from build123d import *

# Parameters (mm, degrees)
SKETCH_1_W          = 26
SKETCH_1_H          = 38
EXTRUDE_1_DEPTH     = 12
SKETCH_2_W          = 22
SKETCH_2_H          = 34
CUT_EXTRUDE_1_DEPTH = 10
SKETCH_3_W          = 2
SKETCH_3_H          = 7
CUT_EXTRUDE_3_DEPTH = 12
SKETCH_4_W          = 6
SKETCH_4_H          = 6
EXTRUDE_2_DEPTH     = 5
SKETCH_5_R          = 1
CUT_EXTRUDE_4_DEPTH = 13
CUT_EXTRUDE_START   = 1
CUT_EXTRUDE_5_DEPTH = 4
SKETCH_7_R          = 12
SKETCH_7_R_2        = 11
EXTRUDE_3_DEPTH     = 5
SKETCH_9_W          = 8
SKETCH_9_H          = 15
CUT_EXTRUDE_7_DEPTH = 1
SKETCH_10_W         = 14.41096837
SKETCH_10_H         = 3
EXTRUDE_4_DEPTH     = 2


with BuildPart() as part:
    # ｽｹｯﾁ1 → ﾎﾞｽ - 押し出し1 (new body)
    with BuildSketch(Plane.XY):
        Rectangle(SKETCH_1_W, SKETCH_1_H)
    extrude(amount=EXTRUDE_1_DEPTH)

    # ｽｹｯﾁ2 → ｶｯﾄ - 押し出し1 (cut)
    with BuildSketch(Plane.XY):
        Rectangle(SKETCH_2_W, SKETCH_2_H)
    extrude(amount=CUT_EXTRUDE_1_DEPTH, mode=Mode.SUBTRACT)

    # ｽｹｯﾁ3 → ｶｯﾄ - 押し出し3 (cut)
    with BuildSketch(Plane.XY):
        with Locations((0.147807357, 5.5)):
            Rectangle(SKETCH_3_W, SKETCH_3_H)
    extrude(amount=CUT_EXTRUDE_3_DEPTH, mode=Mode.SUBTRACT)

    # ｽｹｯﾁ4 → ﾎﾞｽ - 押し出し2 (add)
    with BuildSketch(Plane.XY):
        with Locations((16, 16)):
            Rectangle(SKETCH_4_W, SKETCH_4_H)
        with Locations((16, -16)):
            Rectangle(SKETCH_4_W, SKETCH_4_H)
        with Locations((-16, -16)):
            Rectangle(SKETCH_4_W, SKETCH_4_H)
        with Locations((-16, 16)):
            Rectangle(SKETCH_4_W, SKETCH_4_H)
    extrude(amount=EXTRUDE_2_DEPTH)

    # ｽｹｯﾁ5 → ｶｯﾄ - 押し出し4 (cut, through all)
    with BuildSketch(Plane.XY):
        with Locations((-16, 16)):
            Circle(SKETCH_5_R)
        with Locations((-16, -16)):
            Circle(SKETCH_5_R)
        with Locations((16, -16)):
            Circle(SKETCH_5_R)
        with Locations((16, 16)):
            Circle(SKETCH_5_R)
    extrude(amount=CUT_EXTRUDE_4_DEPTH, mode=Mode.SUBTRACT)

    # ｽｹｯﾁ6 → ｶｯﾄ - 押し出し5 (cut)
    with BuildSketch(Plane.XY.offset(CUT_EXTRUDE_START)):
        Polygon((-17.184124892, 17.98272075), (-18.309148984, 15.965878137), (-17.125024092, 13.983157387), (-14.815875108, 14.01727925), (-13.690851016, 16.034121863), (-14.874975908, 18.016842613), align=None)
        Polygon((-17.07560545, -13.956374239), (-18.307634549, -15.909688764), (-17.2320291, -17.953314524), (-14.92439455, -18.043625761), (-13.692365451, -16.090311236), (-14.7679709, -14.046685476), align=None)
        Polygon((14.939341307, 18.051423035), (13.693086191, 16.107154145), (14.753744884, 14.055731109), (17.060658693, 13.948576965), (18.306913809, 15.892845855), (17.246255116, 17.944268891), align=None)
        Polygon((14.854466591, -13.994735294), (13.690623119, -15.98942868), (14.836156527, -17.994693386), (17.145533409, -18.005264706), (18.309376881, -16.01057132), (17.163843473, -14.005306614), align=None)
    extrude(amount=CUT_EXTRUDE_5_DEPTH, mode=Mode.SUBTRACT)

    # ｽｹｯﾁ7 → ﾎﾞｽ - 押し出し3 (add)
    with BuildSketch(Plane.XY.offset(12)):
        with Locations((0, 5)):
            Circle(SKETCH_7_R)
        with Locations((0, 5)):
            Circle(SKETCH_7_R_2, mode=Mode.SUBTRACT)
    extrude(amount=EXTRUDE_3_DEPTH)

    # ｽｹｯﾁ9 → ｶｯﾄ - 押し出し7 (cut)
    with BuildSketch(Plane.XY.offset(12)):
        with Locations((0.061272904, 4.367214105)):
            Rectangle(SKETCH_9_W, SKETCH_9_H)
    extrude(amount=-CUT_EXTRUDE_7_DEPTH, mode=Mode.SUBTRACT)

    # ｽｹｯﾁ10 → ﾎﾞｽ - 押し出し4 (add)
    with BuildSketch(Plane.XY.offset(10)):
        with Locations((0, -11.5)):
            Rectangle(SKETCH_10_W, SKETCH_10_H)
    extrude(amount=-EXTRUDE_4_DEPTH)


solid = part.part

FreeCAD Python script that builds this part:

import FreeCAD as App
import Part
import Sketcher

V = App.Vector


def add_polygon(sketch, points):
    """Adds a closed chain of lines whose ends are joined by coincident constraints."""
    first, n = sketch.GeometryCount, len(points)
    for a, b in zip(points, points[1:] + points[:1]):
        sketch.addGeometry(Part.LineSegment(App.Vector(*a, 0), App.Vector(*b, 0)), False)
    for i in range(n):
        sketch.addConstraint(Sketcher.Constraint("Coincident", first + i, 2, first + (i + 1) % n, 1))

doc = App.newDocument("Part")
body = doc.addObject("PartDesign::Body", "Body")

# Sketch on XY plane
sketch1 = body.newObject("Sketcher::SketchObject", "Sketch")
sketch1.AttachmentSupport = (doc.getObject("XY_Plane"), [""])
sketch1.MapMode = "FlatFace"
add_polygon(sketch1, [(-13, 19), (-13, -19), (13, -19), (13, 19)])  # lines 0-3
sketch1.addConstraint([
    Sketcher.Constraint("Vertical", 0),
    Sketcher.Constraint("Horizontal", 1),
    Sketcher.Constraint("Vertical", 2),
    Sketcher.Constraint("Horizontal", 3),
    Sketcher.Constraint("Symmetric", 0, 2, 2, 2, -1, 1),
    Sketcher.Constraint("DistanceX", 1, 1, 1, 2, 26.0),
    Sketcher.Constraint("DistanceY", 0, 2, 0, 1, 38.0),
])
pad1 = body.newObject("PartDesign::Pad", "Pad")
pad1.Profile = sketch1
pad1.Length = 12

# Sketch on XY plane
sketch2 = body.newObject("Sketcher::SketchObject", "Sketch001")
sketch2.AttachmentSupport = (doc.getObject("XY_Plane"), [""])
sketch2.MapMode = "FlatFace"
add_polygon(sketch2, [(-11, 17), (-11, -17), (11, -17), (11, 17)])  # lines 0-3
sketch2.addConstraint([
    Sketcher.Constraint("Vertical", 0),
    Sketcher.Constraint("Horizontal", 1),
    Sketcher.Constraint("Vertical", 2),
    Sketcher.Constraint("Horizontal", 3),
    Sketcher.Constraint("Symmetric", 0, 2, 2, 2, -1, 1),
    Sketcher.Constraint("DistanceX", 1, 1, 1, 2, 22.0),
    Sketcher.Constraint("DistanceY", 0, 2, 0, 1, 34.0),
])
pocket1 = body.newObject("PartDesign::Pocket", "Pocket")
pocket1.Profile = sketch2
pocket1.Length = 10
pocket1.Reversed = True

# Sketch on XY plane
sketch3 = body.newObject("Sketcher::SketchObject", "Sketch002")
sketch3.AttachmentSupport = (doc.getObject("XY_Plane"), [""])
sketch3.MapMode = "FlatFace"
add_polygon(sketch3, [(-0.9, 9), (-0.9, 2), (1.1, 2), (1.1, 9)])  # lines 0-3
sketch3.addConstraint([
    Sketcher.Constraint("Vertical", 0),
    Sketcher.Constraint("Horizontal", 1),
    Sketcher.Constraint("Vertical", 2),
    Sketcher.Constraint("Horizontal", 3),
    Sketcher.Constraint("DistanceX", 1, 1, 1, 2, 2.0),
    Sketcher.Constraint("DistanceY", 0, 2, 0, 1, 7.0),
    Sketcher.Constraint("DistanceY", -1, 1, 0, 2, 2.0),
    Sketcher.Constraint("DistanceX", 0, 2, -1, 1, 0.852193),
])
pocket2 = body.newObject("PartDesign::Pocket", "Pocket001")
pocket2.Profile = sketch3
pocket2.Length = 12
pocket2.Reversed = True

# Sketch on XY plane
sketch4 = body.newObject("Sketcher::SketchObject", "Sketch003")
sketch4.AttachmentSupport = (doc.getObject("XY_Plane"), [""])
sketch4.MapMode = "FlatFace"
add_polygon(sketch4, [(13, 19), (13, 13), (19, 13), (19, 19)])  # lines 0-3
add_polygon(sketch4, [(13, -13), (13, -19), (19, -19), (19, -13)])  # lines 4-7
add_polygon(sketch4, [(-19, -13), (-19, -19), (-13, -19), (-13, -13)])  # lines 8-11
add_polygon(sketch4, [(-19, 19), (-19, 13), (-13, 13), (-13, 19)])  # lines 12-15
sketch4.addConstraint([
    Sketcher.Constraint("Vertical", 0),
    Sketcher.Constraint("Horizontal", 1),
    Sketcher.Constraint("Vertical", 2),
    Sketcher.Constraint("Horizontal", 3),
    Sketcher.Constraint("Vertical", 4),
    Sketcher.Constraint("Horizontal", 5),
    Sketcher.Constraint("Vertical", 6),
    Sketcher.Constraint("Horizontal", 7),
    Sketcher.Constraint("Vertical", 8),
    Sketcher.Constraint("Horizontal", 9),
    Sketcher.Constraint("Vertical", 10),
    Sketcher.Constraint("Horizontal", 11),
    Sketcher.Constraint("Vertical", 12),
    Sketcher.Constraint("Horizontal", 13),
    Sketcher.Constraint("Vertical", 14),
    Sketcher.Constraint("Horizontal", 15),
    Sketcher.Constraint("Symmetric", 2, 2, 8, 2, -1, 1),
    Sketcher.Constraint("Symmetric", 0, 2, 10, 2, -1, 1),
    Sketcher.Constraint("Symmetric", 6, 2, 12, 2, -1, 1),
    Sketcher.Constraint("Symmetric", 4, 2, 14, 2, -1, 1),
    Sketcher.Constraint("Symmetric", 5, 2, 8, 2, -2),
    Sketcher.Constraint("Symmetric", 7, 2, 10, 2, -2),
    Sketcher.Constraint("Equal", 15, 0),
    Sketcher.Constraint("DistanceX", 1, 1, 1, 2, 6.0),
    Sketcher.Constraint("DistanceX", -1, 1, 0, 2, 13.0),
    Sketcher.Constraint("DistanceY", -1, 1, 0, 2, 13.0),
])
pad2 = body.newObject("PartDesign::Pad", "Pad001")
pad2.Profile = sketch4
pad2.Length = 5

# Sketch on XY plane
sketch5 = body.newObject("Sketcher::SketchObject", "Sketch004")
sketch5.AttachmentSupport = (doc.getObject("XY_Plane"), [""])
sketch5.MapMode = "FlatFace"
sketch5.addGeometry([
    Part.Circle(V(-16, 16, 0), V(0, 0, 1), 1),
    Part.Circle(V(-16, -16, 0), V(0, 0, 1), 1),
    Part.Circle(V(16, -16, 0), V(0, 0, 1), 1),
    Part.Circle(V(16, 16, 0), V(0, 0, 1), 1),
], False)
sketch5.addConstraint([
    Sketcher.Constraint("Equal", 0, 1),
    Sketcher.Constraint("Equal", 1, 2),
    Sketcher.Constraint("Equal", 2, 3),
    Sketcher.Constraint("Symmetric", 0, 3, 2, 3, -1, 1),
    Sketcher.Constraint("Symmetric", 1, 3, 3, 3, -1, 1),
    Sketcher.Constraint("Symmetric", 1, 3, 2, 3, -2),
    Sketcher.Constraint("Diameter", 0, 2.0),
    Sketcher.Constraint("DistanceX", 0, 3, -1, 1, 16.0),
    Sketcher.Constraint("DistanceY", -1, 1, 0, 3, 16.0),
])
pocket3 = body.newObject("PartDesign::Pocket", "Pocket002")
pocket3.Profile = sketch5
pocket3.Type = "ThroughAll"
pocket3.Reversed = True

# Sketch on XY plane
sketch6 = body.newObject("Sketcher::SketchObject", "Sketch005")
sketch6.AttachmentSupport = (doc.getObject("XY_Plane"), [""])
sketch6.MapMode = "FlatFace"
sketch6.AttachmentOffset = App.Placement(V(0, 0, 1), App.Rotation())
add_polygon(sketch6, [(-17.2, 18), (-18.3, 16), (-17.1, 14), (-14.8, 14), (-13.7, 16), (-14.9, 18)])  # lines 0-5
add_polygon(sketch6, [(-17.1, -14), (-18.3, -15.9), (-17.2, -18), (-14.9, -18), (-13.7, -16.1), (-14.8, -14)])  # lines 6-11
add_polygon(sketch6, [(14.9, 18.1), (13.7, 16.1), (14.8, 14.1), (17.1, 13.9), (18.3, 15.9), (17.2, 17.9)])  # lines 12-17
add_polygon(sketch6, [(14.9, -14), (13.7, -16), (14.8, -18), (17.1, -18), (18.3, -16), (17.2, -14)])  # lines 18-23
sketch6.addConstraint([
    Sketcher.Constraint("Parallel", 0, 3),
    Sketcher.Constraint("Parallel", 1, 4),
    Sketcher.Constraint("Parallel", 2, 5),
    Sketcher.Constraint("Parallel", 6, 9),
    Sketcher.Constraint("Parallel", 7, 10),
    Sketcher.Constraint("Parallel", 8, 11),
    Sketcher.Constraint("Parallel", 12, 15),
    Sketcher.Constraint("Parallel", 13, 16),
    Sketcher.Constraint("Parallel", 14, 17),
    Sketcher.Constraint("Parallel", 18, 21),
    Sketcher.Constraint("Parallel", 19, 22),
    Sketcher.Constraint("Parallel", 20, 23),
    Sketcher.Constraint("Equal", 0, 1),
    Sketcher.Constraint("Equal", 1, 2),
    Sketcher.Constraint("Equal", 2, 3),
    Sketcher.Constraint("Equal", 5, 6),
    Sketcher.Constraint("Equal", 6, 7),
    Sketcher.Constraint("Equal", 7, 8),
    Sketcher.Constraint("Equal", 8, 9),
    Sketcher.Constraint("Equal", 11, 12),
    Sketcher.Constraint("Equal", 12, 13),
    Sketcher.Constraint("Equal", 13, 14),
    Sketcher.Constraint("Equal", 14, 15),
    Sketcher.Constraint("Equal", 17, 18),
    Sketcher.Constraint("Equal", 18, 19),
    Sketcher.Constraint("Equal", 19, 20),
    Sketcher.Constraint("Equal", 20, 21),
    Sketcher.Constraint("Distance", 0, 2.309401),
    Sketcher.Constraint("DistanceY", 2, 2, 0, 2, 1.948599),
    Sketcher.Constraint("DistanceX", 4, 2, 2, 2, 0.059101),
    Sketcher.Constraint("DistanceX", 9, 2, 20, 2, 30.837899),
    Sketcher.Constraint("DistanceX", 0, 2, -1, 1, 18.309149),
    Sketcher.Constraint("DistanceY", -1, 1, 0, 2, 15.965878),
    Sketcher.Constraint("DistanceX", 3, 2, -1, 1, 13.690851),
    Sketcher.Constraint("DistanceY", 6, 2, -1, 1, 15.909689),
    Sketcher.Constraint("DistanceX", 7, 2, -1, 1, 17.232029),
    Sketcher.Constraint("DistanceY", 9, 2, -1, 1, 16.090311),
    Sketcher.Constraint("DistanceX", 10, 2, -1, 1, 14.767971),
    Sketcher.Constraint("DistanceY", -1, 1, 13, 2, 14.055731),
    Sketcher.Constraint("DistanceX", -1, 1, 14, 2, 17.060659),
    Sketcher.Constraint("DistanceY", -1, 1, 16, 2, 17.944269),
    Sketcher.Constraint("DistanceX", -1, 1, 17, 2, 14.939341),
    Sketcher.Constraint("DistanceY", 18, 2, -1, 1, 15.989429),
    Sketcher.Constraint("DistanceY", 21, 2, -1, 1, 16.010571),
    Sketcher.Constraint("DistanceX", 6, 2, 1, 2, 1.18261),
    Sketcher.Constraint("DistanceX", 2, 2, 12, 2, 28.508961),
    Sketcher.Constraint("DistanceX", 9, 2, 18, 2, 27.382989),
    Sketcher.Constraint("DistanceY", 20, 2, 19, 2, 0.010571),
])
pocket4 = body.newObject("PartDesign::Pocket", "Pocket003")
pocket4.Profile = sketch6
pocket4.Length = 4
pocket4.Reversed = True

# Sketch on XY plane
sketch7 = body.newObject("Sketcher::SketchObject", "Sketch006")
sketch7.AttachmentSupport = (doc.getObject("XY_Plane"), [""])
sketch7.MapMode = "FlatFace"
sketch7.AttachmentOffset = App.Placement(V(0, 0, 12), App.Rotation())
sketch7.addGeometry([
    Part.Circle(V(0, 5, 0), V(0, 0, 1), 12),
    Part.Circle(V(0, 5, 0), V(0, 0, 1), 11),
], False)
sketch7.addConstraint([
    Sketcher.Constraint("Coincident", 1, 3, 0, 3),
    Sketcher.Constraint("PointOnObject", 0, 3, -2),
    Sketcher.Constraint("Diameter", 0, 24.0),
    Sketcher.Constraint("Diameter", 1, 22.0),
    Sketcher.Constraint("DistanceY", -1, 1, 0, 3, 5.0),
])
pad3 = body.newObject("PartDesign::Pad", "Pad002")
pad3.Profile = sketch7
pad3.Length = 5

# Sketch on XY plane
sketch8 = body.newObject("Sketcher::SketchObject", "Sketch007")
sketch8.AttachmentSupport = (doc.getObject("XY_Plane"), [""])
sketch8.MapMode = "FlatFace"
sketch8.AttachmentOffset = App.Placement(V(0, 0, 12), App.Rotation())
add_polygon(sketch8, [(-4, 12), (-4, -3), (4, -3), (4, 12)])  # lines 0-3
sketch8.addConstraint([
    Sketcher.Constraint("Vertical", 0),
    Sketcher.Constraint("Horizontal", 1),
    Sketcher.Constraint("Vertical", 2),
    Sketcher.Constraint("Horizontal", 3),
    Sketcher.Constraint("DistanceX", 1, 1, 1, 2, 8.0),
    Sketcher.Constraint("DistanceY", 0, 2, 0, 1, 15.0),
    Sketcher.Constraint("DistanceX", 0, 2, -1, 1, 3.938727),
    Sketcher.Constraint("DistanceY", 0, 2, -1, 1, 3.132786),
])
pocket5 = body.newObject("PartDesign::Pocket", "Pocket004")
pocket5.Profile = sketch8
pocket5.Length = 1

# Sketch on XY plane
sketch9 = body.newObject("Sketcher::SketchObject", "Sketch008")
sketch9.AttachmentSupport = (doc.getObject("XY_Plane"), [""])
sketch9.MapMode = "FlatFace"
sketch9.AttachmentOffset = App.Placement(V(0, 0, 10), App.Rotation())
add_polygon(sketch9, [(-7.2, -10), (-7.2, -13), (7.2, -13), (7.2, -10)])  # lines 0-3
sketch9.addConstraint([
    Sketcher.Constraint("Vertical", 0),
    Sketcher.Constraint("Horizontal", 1),
    Sketcher.Constraint("Vertical", 2),
    Sketcher.Constraint("Horizontal", 3),
    Sketcher.Constraint("DistanceY", 0, 2, 0, 1, 3.0),
    Sketcher.Constraint("DistanceY", 0, 2, -1, 1, 13.0),
    Sketcher.Constraint("DistanceX", 1, 1, 1, 2, 14.410968),
    Sketcher.Constraint("DistanceX", 0, 2, -1, 1, 7.205484),
])
pad4 = body.newObject("PartDesign::Pad", "Pad003")
pad4.Profile = sketch9
pad4.Length = 2
pad4.Reversed = True

doc.recompute()
